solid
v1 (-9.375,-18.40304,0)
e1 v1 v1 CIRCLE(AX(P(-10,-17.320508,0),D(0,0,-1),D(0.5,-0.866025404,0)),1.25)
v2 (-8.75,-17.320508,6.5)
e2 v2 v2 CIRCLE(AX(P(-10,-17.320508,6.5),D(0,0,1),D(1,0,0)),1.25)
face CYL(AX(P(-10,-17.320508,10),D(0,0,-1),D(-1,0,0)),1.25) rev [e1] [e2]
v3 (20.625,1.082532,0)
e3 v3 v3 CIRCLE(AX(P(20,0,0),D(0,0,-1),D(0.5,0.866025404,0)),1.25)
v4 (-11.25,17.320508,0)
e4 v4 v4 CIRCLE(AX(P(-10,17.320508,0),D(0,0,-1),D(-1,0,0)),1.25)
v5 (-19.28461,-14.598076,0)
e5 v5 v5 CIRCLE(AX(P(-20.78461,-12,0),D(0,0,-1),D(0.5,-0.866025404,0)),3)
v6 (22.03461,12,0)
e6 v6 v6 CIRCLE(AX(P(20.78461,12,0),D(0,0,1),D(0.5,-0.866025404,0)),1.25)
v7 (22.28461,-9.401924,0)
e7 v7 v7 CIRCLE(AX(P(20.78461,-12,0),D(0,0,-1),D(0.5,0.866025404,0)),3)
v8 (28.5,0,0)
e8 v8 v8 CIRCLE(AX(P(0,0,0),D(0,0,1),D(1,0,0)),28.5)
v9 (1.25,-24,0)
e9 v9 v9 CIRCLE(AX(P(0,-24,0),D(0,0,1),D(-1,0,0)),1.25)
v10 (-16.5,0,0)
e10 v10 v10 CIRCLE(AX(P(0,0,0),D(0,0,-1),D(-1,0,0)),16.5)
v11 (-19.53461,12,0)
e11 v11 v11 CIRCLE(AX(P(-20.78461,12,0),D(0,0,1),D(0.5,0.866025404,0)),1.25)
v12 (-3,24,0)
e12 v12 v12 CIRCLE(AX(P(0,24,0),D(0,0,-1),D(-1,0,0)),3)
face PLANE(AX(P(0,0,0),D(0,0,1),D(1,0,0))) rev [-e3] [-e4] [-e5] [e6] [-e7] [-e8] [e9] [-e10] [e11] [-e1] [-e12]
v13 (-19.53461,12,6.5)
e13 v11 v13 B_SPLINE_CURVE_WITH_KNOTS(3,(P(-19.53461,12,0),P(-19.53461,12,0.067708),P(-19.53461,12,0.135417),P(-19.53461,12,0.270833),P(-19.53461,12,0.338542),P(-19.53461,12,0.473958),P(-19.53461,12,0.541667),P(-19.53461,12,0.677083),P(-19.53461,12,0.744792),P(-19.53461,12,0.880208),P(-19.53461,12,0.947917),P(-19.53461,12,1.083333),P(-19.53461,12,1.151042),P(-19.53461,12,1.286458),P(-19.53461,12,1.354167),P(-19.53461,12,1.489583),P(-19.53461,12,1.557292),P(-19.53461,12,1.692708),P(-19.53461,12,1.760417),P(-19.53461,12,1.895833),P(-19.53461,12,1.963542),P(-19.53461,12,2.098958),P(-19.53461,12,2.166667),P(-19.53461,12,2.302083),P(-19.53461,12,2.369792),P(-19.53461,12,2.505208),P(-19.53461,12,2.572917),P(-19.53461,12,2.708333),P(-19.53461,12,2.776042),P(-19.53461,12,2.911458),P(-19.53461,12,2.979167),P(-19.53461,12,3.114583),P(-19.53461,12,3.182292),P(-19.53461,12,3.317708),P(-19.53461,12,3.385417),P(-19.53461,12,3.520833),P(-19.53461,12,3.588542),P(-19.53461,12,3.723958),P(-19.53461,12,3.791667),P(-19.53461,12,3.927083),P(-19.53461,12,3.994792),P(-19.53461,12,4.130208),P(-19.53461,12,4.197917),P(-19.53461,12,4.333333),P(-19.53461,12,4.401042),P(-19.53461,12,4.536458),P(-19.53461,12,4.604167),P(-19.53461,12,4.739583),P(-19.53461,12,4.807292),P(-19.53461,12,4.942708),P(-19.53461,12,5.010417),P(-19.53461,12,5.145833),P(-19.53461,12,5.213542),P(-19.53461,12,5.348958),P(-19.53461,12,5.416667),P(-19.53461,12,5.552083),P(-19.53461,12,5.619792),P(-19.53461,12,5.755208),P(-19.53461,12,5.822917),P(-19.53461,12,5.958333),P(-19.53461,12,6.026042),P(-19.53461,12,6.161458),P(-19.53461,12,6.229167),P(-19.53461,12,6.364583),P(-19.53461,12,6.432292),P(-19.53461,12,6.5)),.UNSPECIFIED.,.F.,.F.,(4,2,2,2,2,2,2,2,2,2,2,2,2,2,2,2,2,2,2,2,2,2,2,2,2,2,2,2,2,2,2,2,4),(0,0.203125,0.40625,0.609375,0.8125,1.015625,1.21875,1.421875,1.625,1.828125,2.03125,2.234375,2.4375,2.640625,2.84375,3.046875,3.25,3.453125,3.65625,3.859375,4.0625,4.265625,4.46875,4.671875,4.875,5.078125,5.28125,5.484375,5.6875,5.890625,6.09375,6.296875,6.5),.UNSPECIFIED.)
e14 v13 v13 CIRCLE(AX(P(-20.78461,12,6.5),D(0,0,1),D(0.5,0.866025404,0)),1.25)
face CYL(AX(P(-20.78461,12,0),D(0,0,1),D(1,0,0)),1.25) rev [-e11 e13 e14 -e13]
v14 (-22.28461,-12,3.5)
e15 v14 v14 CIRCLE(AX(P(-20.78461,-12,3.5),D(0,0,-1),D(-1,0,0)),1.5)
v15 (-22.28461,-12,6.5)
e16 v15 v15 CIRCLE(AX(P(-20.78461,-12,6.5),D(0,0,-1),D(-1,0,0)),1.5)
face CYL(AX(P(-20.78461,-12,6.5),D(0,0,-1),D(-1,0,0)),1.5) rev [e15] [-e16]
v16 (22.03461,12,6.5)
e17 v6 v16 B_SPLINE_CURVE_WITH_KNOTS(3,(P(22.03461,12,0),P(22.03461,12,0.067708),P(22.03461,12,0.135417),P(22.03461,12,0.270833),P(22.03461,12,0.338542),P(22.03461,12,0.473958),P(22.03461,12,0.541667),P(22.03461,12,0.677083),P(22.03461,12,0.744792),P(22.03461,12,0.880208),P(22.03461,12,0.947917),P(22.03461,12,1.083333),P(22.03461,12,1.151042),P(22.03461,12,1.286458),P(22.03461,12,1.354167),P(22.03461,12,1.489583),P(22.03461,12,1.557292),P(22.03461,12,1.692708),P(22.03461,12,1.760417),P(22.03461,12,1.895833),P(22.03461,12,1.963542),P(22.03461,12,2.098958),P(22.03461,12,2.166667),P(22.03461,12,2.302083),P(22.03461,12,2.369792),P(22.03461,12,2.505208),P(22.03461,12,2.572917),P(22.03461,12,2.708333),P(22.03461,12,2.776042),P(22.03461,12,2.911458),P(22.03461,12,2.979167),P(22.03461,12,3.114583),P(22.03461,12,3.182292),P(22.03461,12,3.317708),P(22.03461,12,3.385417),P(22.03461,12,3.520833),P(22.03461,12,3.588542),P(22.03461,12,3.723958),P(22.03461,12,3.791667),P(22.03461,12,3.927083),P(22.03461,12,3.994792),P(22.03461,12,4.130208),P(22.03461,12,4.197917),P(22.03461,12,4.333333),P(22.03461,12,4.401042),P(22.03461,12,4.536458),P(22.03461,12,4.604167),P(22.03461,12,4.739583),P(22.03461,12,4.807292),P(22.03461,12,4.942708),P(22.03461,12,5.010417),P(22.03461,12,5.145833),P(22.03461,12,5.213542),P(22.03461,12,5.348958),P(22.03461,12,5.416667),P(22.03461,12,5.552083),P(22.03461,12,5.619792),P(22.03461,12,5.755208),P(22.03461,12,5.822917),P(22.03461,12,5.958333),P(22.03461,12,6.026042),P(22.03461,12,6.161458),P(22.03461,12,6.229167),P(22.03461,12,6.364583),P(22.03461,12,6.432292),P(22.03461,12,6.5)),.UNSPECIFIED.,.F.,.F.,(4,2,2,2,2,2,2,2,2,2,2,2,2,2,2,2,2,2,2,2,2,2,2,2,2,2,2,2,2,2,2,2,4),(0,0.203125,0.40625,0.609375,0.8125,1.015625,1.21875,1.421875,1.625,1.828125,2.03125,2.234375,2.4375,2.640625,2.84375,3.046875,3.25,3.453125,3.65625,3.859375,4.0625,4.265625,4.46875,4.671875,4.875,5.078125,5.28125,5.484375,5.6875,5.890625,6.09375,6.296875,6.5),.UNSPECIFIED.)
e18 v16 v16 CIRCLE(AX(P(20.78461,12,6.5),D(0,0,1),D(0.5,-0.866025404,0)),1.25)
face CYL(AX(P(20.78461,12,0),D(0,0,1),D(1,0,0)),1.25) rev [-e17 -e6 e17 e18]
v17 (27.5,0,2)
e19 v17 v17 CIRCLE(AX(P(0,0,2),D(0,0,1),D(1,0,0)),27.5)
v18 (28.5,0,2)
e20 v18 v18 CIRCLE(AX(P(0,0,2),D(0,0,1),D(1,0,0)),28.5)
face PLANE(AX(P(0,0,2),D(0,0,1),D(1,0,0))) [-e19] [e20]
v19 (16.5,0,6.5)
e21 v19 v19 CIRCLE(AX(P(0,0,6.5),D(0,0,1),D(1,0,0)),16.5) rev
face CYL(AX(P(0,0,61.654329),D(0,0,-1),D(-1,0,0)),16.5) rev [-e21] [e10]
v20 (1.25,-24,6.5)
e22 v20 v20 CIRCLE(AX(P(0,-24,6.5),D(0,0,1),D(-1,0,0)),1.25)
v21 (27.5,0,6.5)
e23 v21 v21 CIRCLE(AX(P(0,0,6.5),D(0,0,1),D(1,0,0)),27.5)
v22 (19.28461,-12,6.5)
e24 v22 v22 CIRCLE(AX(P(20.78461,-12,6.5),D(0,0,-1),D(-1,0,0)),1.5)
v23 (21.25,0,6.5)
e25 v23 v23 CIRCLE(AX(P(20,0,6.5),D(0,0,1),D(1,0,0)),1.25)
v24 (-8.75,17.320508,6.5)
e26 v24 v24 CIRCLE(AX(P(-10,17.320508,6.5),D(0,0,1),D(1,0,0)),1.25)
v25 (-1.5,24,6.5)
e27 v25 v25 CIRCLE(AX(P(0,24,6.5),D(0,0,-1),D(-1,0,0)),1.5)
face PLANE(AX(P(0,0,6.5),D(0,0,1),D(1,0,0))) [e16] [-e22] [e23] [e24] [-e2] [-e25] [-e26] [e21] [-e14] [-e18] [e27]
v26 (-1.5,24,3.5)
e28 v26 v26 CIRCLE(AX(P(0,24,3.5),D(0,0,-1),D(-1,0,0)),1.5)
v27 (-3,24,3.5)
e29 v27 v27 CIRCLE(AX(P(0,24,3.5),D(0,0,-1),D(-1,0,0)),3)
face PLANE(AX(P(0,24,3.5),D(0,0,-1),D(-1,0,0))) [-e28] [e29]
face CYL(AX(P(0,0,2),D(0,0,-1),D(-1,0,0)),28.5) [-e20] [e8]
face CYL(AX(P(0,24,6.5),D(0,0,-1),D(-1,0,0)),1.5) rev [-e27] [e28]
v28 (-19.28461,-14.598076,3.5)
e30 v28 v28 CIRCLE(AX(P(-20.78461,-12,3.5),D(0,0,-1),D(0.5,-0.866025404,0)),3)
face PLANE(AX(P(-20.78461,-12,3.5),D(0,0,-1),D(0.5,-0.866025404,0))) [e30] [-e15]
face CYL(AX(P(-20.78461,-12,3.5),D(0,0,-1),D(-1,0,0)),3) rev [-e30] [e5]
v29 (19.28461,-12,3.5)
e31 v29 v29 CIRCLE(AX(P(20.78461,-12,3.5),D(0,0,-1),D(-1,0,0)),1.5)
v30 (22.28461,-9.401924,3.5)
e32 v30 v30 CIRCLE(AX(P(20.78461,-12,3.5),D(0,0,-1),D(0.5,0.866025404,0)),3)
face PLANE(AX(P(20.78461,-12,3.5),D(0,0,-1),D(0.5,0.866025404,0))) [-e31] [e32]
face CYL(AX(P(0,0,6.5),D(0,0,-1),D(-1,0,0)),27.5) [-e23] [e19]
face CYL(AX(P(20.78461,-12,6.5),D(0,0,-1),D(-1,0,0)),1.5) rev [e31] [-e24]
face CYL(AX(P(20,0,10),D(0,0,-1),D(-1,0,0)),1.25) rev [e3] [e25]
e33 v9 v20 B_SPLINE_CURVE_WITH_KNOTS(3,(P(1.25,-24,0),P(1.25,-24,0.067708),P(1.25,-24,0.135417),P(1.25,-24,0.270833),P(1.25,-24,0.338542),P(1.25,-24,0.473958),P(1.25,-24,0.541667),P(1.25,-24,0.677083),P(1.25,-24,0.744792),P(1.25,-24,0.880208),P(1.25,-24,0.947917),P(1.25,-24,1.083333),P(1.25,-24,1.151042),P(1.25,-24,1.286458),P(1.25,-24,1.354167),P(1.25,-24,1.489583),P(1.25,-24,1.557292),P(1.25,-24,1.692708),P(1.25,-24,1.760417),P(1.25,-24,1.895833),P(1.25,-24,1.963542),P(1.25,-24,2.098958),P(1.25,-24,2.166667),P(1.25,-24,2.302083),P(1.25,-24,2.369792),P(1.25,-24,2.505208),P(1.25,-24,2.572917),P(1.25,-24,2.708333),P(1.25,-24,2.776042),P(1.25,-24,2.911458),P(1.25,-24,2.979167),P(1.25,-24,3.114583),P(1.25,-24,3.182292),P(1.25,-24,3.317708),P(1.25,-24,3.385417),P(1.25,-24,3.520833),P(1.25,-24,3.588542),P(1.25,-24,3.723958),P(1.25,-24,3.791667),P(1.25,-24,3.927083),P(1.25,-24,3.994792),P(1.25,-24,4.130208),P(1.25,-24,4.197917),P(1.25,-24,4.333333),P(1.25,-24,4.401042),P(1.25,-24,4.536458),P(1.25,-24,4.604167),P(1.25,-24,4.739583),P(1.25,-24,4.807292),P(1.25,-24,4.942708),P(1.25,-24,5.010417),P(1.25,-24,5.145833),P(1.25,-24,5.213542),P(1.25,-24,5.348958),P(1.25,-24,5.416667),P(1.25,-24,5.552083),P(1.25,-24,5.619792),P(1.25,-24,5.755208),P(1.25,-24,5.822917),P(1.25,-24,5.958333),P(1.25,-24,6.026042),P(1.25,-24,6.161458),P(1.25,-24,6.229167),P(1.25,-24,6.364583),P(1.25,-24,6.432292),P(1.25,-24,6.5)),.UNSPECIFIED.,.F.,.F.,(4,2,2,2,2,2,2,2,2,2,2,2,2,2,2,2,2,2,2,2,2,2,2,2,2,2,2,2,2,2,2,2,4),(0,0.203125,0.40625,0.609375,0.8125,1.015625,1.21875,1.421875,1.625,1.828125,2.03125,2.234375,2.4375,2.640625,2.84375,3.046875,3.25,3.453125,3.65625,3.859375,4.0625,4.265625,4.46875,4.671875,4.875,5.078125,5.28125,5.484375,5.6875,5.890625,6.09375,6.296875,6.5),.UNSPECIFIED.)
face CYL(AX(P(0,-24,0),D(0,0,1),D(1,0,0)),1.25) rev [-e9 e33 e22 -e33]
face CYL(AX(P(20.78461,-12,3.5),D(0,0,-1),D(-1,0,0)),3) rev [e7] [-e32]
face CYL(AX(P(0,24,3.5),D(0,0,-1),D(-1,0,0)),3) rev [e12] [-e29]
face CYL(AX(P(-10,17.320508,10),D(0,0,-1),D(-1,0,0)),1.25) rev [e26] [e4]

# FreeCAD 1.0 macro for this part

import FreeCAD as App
import Part
import Sketcher

doc = App.newDocument("Part")
body = doc.addObject("PartDesign::Body", "Body")

# Sketch on XY plane
sketch1 = body.newObject("Sketcher::SketchObject", "Sketch")
sketch1.AttachmentSupport = (doc.getObject("XY_Plane"), [""])
sketch1.MapMode = "FlatFace"
sketch1.addGeometry([
    Part.Circle(App.Vector(0, 0, 0), App.Vector(0, 0, 1), 28.5),
    Part.Circle(App.Vector(0, 0, 0), App.Vector(0, 0, 1), 19.5),
], False)
sketch1.addConstraint([
    Sketcher.Constraint("Coincident", 0, 3, -1, 1),
    Sketcher.Constraint("Coincident", 1, 3, -1, 1),
    Sketcher.Constraint("Diameter", 0, 57.0),
    Sketcher.Constraint("Diameter", 1, 39.0),
])
pad1 = body.newObject("PartDesign::Pad", "Pad")
pad1.Profile = sketch1
pad1.Length = 2

# Sketch on XY plane
sketch2 = body.newObject("Sketcher::SketchObject", "Sketch001")
sketch2.AttachmentSupport = (doc.getObject("XY_Plane"), [""])
sketch2.MapMode = "FlatFace"
sketch2.AttachmentOffset = App.Placement(App.Vector(0, 0, 2), App.Rotation())
sketch2.addGeometry([
    Part.Circle(App.Vector(0, 0, 0), App.Vector(0, 0, 1), 27.5),
    Part.Circle(App.Vector(0, 0, 0), App.Vector(0, 0, 1), 19.5),
], False)
sketch2.addConstraint([
    Sketcher.Constraint("Coincident", 0, 3, -1, 1),
    Sketcher.Constraint("Coincident", 1, 3, -1, 1),
    Sketcher.Constraint("Diameter", 0, 55.0),
    Sketcher.Constraint("Diameter", 1, 39.0),
])
pad2 = body.newObject("PartDesign::Pad", "Pad001")
pad2.Profile = sketch2
pad2.Length = 4.5

# Sketch on XY plane
sketch3 = body.newObject("Sketcher::SketchObject", "Sketch002")
sketch3.AttachmentSupport = (doc.getObject("XY_Plane"), [""])
sketch3.MapMode = "FlatFace"
sketch3.AttachmentOffset = App.Placement(App.Vector(0, 0, 6.5), App.Rotation())
sketch3.addGeometry(Part.Circle(App.Vector(0, 24, 0), App.Vector(0, 0, 1), 1.25), False)
sketch3.addConstraint([
    Sketcher.Constraint("PointOnObject", 0, 3, -2),
    Sketcher.Constraint("Diameter", 0, 2.5),
    Sketcher.Constraint("DistanceY", -1, 1, 0, 3, 24.0),
])
pocket1 = body.newObject("PartDesign::Pocket", "Pocket")
pocket1.Profile = sketch3
pocket1.Type = "ThroughAll"
doc.recompute()

polarpattern = body.newObject("PartDesign::PolarPattern", "PolarPattern")
polarpattern.Originals = [pocket1]
polarpattern.Axis = (doc.getObject("Z_Axis"), [""])
polarpattern.Angle = 360
polarpattern.Occurrences = 6
body.Tip = polarpattern

# Sketch on XY plane
sketch4 = body.newObject("Sketcher::SketchObject", "Sketch003")
sketch4.AttachmentSupport = (doc.getObject("XY_Plane"), [""])
sketch4.MapMode = "FlatFace"
sketch4.addGeometry([
    Part.Circle(App.Vector(0, 0, 0), App.Vector(0, 0, 1), 19.5),
    Part.Circle(App.Vector(0, 0, 0), App.Vector(0, 0, 1), 16.5),
], False)
sketch4.addConstraint([
    Sketcher.Constraint("Coincident", 0, 3, -1, 1),
    Sketcher.Constraint("Coincident", 1, 3, -1, 1),
    Sketcher.Constraint("Diameter", 0, 39.0),
    Sketcher.Constraint("Diameter", 1, 33.0),
])
pad3 = body.newObject("PartDesign::Pad", "Pad002")
pad3.Profile = sketch4
pad3.Length = 6.5

# Sketch on XY plane
sketch5 = body.newObject("Sketcher::SketchObject", "Sketch004")
sketch5.AttachmentSupport = (doc.getObject("XY_Plane"), [""])
sketch5.MapMode = "FlatFace"
sketch5.addGeometry(Part.Circle(App.Vector(-10, 17.320508, 0), App.Vector(0, 0, 1), 1.25), False)
sketch5.addConstraint([
    Sketcher.Constraint("Diameter", 0, 2.5),
    Sketcher.Constraint("DistanceX", 0, 3, -1, 1, 10.0),
    Sketcher.Constraint("DistanceY", -1, 1, 0, 3, 17.320508),
])
pocket2 = body.newObject("PartDesign::Pocket", "Pocket001")
pocket2.Profile = sketch5
pocket2.Length = 10
pocket2.Reversed = True
doc.recompute()

polarpattern2 = body.newObject("PartDesign::PolarPattern", "PolarPattern001")
polarpattern2.Originals = [pocket2]
polarpattern2.Axis = (doc.getObject("Z_Axis"), [""])
polarpattern2.Angle = 360
polarpattern2.Occurrences = 3
body.Tip = polarpattern2

# Sketch on XY plane
sketch6 = body.newObject("Sketcher::SketchObject", "Sketch005")
sketch6.AttachmentSupport = (doc.getObject("XY_Plane"), [""])
sketch6.MapMode = "FlatFace"
sketch6.addGeometry(Part.Circle(App.Vector(0, 24, 0), App.Vector(0, 0, 1), 3), False)
sketch6.addConstraint([
    Sketcher.Constraint("PointOnObject", 0, 3, -2),
    Sketcher.Constraint("Diameter", 0, 6.0),
    Sketcher.Constraint("DistanceY", -1, 1, 0, 3, 24.0),
])
pocket3 = body.newObject("PartDesign::Pocket", "Pocket002")
pocket3.Profile = sketch6
pocket3.Length = 3.5
pocket3.Reversed = True
doc.recompute()

polarpattern3 = body.newObject("PartDesign::PolarPattern", "PolarPattern002")
polarpattern3.Originals = [pocket3]
polarpattern3.Axis = (doc.getObject("Z_Axis"), [""])
polarpattern3.Angle = 360
polarpattern3.Occurrences = 3
body.Tip = polarpattern3

# Sketch on XY plane
sketch7 = body.newObject("Sketcher::SketchObject", "Sketch006")
sketch7.AttachmentSupport = (doc.getObject("XY_Plane"), [""])
sketch7.MapMode = "FlatFace"
sketch7.AttachmentOffset = App.Placement(App.Vector(0, 0, 3.5), App.Rotation())
sketch7.addGeometry([
    Part.Circle(App.Vector(0, 24, 0), App.Vector(0, 0, 1), 1.5),
    Part.Circle(App.Vector(-20.78461, -12, 0), App.Vector(0, 0, 1), 1.5),
    Part.Circle(App.Vector(20.78461, -12, 0), App.Vector(0, 0, 1), 1.5),
], False)
sketch7.addConstraint([
    Sketcher.Constraint("Equal", 0, 1),
    Sketcher.Constraint("Equal", 1, 2),
    Sketcher.Constraint("Symmetric", 1, 3, 2, 3, -2),
    Sketcher.Constraint("PointOnObject", 0, 3, -2),
    Sketcher.Constraint("Diameter", 0, 3.0),
    Sketcher.Constraint("DistanceY", -1, 1, 0, 3, 24.0),
    Sketcher.Constraint("DistanceY", 1, 3, -1, 1, 12.0),
    Sketcher.Constraint("DistanceX", 1, 3, -1, 1, 20.78461),
])
pocket4 = body.newObject("PartDesign::Pocket", "Pocket003")
pocket4.Profile = sketch7
pocket4.Type = "ThroughAll"
pocket4.Reversed = True

doc.recompute()
